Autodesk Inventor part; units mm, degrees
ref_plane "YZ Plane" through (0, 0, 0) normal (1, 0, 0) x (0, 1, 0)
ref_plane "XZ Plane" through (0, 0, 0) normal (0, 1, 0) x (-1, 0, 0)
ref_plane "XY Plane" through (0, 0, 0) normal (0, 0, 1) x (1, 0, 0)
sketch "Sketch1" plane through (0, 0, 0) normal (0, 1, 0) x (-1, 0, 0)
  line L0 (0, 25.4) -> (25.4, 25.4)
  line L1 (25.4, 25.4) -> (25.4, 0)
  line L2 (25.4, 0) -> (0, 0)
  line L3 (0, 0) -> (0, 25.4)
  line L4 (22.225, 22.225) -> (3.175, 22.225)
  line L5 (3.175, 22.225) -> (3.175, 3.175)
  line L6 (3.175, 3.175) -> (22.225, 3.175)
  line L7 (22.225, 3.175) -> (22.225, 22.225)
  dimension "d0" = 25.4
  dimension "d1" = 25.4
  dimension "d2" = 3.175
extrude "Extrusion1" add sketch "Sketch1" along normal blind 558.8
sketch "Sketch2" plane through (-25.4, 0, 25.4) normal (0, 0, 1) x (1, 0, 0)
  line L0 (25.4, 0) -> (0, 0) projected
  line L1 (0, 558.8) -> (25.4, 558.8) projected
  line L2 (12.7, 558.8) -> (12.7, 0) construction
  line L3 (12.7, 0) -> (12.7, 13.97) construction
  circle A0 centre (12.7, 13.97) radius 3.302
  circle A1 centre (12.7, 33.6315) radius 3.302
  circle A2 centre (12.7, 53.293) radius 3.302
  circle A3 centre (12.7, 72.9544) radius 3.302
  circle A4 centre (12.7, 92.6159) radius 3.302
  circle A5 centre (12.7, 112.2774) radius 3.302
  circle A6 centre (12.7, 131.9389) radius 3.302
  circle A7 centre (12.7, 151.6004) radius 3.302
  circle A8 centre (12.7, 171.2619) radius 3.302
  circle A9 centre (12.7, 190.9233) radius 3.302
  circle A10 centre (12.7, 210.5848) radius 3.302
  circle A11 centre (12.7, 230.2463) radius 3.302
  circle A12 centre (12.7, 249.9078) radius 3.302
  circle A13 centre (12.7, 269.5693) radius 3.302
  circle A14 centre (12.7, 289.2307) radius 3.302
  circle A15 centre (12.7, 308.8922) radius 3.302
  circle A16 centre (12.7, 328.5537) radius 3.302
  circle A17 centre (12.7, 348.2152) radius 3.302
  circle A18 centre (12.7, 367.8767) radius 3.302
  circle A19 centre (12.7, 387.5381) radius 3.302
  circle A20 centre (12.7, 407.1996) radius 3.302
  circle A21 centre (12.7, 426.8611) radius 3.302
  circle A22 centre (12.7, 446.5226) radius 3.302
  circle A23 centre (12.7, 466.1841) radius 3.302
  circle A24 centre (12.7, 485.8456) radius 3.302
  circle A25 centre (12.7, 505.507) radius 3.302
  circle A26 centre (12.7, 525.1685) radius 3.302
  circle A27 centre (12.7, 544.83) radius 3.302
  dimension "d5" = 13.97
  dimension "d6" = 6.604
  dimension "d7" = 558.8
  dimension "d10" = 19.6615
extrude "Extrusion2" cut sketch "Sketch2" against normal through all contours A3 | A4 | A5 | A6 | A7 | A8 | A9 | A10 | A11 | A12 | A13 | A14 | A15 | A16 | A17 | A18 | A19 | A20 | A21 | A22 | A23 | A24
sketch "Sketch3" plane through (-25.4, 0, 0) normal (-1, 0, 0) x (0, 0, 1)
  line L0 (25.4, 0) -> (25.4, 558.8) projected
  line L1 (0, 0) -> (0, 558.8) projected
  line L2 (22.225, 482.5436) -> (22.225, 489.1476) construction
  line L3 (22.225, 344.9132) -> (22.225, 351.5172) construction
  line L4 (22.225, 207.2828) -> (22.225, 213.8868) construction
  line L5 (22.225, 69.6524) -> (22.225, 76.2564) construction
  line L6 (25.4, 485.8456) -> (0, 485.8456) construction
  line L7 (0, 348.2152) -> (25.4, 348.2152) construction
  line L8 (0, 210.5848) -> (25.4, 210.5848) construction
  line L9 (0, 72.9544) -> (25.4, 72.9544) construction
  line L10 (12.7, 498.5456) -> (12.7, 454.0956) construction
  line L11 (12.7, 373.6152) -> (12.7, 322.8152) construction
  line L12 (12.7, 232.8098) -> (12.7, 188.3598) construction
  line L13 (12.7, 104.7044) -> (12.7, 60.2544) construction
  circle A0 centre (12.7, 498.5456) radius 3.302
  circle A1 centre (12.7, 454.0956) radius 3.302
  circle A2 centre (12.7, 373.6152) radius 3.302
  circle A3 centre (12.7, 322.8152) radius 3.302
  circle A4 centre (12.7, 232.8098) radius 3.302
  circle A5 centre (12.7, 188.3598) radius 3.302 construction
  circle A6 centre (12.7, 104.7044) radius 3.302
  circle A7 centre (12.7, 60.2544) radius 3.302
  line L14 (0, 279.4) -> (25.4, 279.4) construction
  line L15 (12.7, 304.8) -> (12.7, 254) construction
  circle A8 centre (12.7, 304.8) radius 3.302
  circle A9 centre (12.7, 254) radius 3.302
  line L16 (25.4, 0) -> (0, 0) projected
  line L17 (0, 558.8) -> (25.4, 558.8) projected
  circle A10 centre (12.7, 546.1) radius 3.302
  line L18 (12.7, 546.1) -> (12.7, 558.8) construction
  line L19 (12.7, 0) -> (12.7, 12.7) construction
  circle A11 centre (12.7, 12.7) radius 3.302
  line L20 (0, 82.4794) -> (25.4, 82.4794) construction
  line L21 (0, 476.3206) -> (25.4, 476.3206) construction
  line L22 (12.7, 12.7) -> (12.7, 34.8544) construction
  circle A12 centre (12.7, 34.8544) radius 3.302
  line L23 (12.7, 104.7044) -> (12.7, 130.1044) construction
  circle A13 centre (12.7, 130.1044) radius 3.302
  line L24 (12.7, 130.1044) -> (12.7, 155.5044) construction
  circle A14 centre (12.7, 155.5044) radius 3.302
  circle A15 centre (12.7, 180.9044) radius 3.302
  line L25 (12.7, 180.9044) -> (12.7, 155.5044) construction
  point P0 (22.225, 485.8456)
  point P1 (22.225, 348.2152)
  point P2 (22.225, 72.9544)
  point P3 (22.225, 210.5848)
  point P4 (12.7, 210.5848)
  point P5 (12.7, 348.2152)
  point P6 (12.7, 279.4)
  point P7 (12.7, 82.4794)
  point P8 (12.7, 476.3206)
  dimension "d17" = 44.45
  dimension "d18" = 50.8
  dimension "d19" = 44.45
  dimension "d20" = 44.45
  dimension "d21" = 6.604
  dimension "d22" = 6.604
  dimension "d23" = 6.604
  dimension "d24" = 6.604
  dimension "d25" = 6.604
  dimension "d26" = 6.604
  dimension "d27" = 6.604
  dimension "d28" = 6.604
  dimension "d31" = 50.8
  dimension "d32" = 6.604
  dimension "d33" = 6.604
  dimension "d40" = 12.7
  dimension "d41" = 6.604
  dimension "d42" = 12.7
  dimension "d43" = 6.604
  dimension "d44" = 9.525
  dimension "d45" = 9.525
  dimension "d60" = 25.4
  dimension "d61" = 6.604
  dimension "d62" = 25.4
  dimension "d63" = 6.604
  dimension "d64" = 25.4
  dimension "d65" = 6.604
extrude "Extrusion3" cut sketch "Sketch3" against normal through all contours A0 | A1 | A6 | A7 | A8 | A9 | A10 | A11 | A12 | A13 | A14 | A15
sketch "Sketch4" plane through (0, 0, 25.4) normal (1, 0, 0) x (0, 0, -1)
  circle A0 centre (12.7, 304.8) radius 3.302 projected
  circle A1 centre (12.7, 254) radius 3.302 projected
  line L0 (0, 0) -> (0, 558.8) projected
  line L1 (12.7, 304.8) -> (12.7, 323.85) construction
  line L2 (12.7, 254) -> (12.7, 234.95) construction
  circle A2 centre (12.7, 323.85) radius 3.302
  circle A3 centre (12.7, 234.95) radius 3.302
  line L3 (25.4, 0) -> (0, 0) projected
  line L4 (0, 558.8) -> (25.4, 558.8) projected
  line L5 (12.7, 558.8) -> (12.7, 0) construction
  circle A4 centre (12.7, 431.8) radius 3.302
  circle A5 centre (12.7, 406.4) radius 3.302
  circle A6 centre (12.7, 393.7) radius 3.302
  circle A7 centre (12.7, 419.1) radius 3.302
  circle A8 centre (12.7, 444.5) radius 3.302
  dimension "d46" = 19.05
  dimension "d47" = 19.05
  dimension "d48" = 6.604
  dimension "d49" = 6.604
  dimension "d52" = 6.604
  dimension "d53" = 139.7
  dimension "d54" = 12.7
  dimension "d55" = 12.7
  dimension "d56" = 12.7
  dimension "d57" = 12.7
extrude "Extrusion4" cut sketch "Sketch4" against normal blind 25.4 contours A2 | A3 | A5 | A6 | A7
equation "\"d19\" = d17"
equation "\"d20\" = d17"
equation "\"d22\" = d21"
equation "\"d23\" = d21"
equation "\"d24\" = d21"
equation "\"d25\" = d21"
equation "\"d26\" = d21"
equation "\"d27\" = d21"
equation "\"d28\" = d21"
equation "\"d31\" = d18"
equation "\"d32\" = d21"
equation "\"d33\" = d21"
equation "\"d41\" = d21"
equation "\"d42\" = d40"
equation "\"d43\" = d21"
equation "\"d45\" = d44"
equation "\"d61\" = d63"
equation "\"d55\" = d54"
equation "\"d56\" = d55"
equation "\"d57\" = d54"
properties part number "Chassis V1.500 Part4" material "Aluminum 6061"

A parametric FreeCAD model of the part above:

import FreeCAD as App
import Part
import Sketcher

V = App.Vector
Q = App.Units.Quantity


def add_polygon(sketch, points):
    """Adds a closed chain of lines whose ends are joined by coincident constraints."""
    first, n = sketch.GeometryCount, len(points)
    for a, b in zip(points, points[1:] + points[:1]):
        sketch.addGeometry(Part.LineSegment(App.Vector(*a, 0), App.Vector(*b, 0)), False)
    for i in range(n):
        sketch.addConstraint(Sketcher.Constraint("Coincident", first + i, 2, first + (i + 1) % n, 1))

doc = App.newDocument("Part")
params = doc.addObject("Spreadsheet::Sheet", "Params")
for row, (alias, value) in enumerate([
    ("sketch1_width", "1 in"),
    ("pad1_length", "22 in"),
    ("sketch2_diameter", "0.26 in"),
    ("sketch3_diameter", "0.26 in"),
    ("sketch4_diameter", "0.26 in"),
    ("pocket3_length", "1 in"),
], start=1):
    params.set(f"A{row}", alias)
    params.set(f"B{row}", "=" + value)
    params.setAlias(f"B{row}", alias)

body = doc.addObject("PartDesign::Body", "Body")

# Sketch on XZ plane
sketch1 = body.newObject("Sketcher::SketchObject", "Sketch")
sketch1.AttachmentSupport = (doc.getObject("XZ_Plane"), [""])
sketch1.MapMode = "FlatFace"
add_polygon(sketch1, [(-25, 25), (0, 25), (0, 0), (-25, 0)])  # lines 0-3
add_polygon(sketch1, [(-3, 22), (-22, 22), (-22, 3), (-3, 3)])  # lines 4-7
sketch1.addConstraint([
    Sketcher.Constraint("Horizontal", 0),
    Sketcher.Constraint("Vertical", 1),
    Sketcher.Constraint("Horizontal", 2),
    Sketcher.Constraint("Vertical", 3),
    Sketcher.Constraint("Horizontal", 4),
    Sketcher.Constraint("Vertical", 5),
    Sketcher.Constraint("Horizontal", 6),
    Sketcher.Constraint("Vertical", 7),
    Sketcher.Constraint("Coincident", 1, 2, -1, 1),
    Sketcher.Constraint("Equal", 2, 1),
    Sketcher.Constraint("Equal", 6, 5),
    Sketcher.Constraint("DistanceX", 0, 1, 0, 2, Q("1 in")),
    Sketcher.Constraint("DistanceY", -1, 1, 5, 2, Q("0.125 in")),
    Sketcher.Constraint("DistanceX", 6, 2, -1, 1, Q("0.125 in")),
    Sketcher.Constraint("DistanceX", 3, 2, 4, 2, Q("0.125 in")),
])
sketch1.setExpression("Constraints[19]", "Params.sketch1_width")
pad1 = body.newObject("PartDesign::Pad", "Pad")
pad1.Profile = sketch1
pad1.setExpression("Length", "Params.pad1_length")
pad1.Reversed = True

# Sketch on XY plane
sketch2 = body.newObject("Sketcher::SketchObject", "Sketch001")
sketch2.AttachmentSupport = (doc.getObject("XY_Plane"), [""])
sketch2.MapMode = "FlatFace"
sketch2.AttachmentOffset = App.Placement(V(0, 0, 1 * 25.4), App.Rotation())
sketch2.addGeometry([
    Part.Circle(V(-12.7, 73, 0), V(0, 0, 1), 3.3),  # 0
    Part.Circle(V(-12.7, 92.6, 0), V(0, 0, 1), 3.3),  # 1
    Part.Circle(V(-12.7, 112.3, 0), V(0, 0, 1), 3.3),  # 2
    Part.Circle(V(-12.7, 131.9, 0), V(0, 0, 1), 3.3),  # 3
    Part.Circle(V(-12.7, 151.6, 0), V(0, 0, 1), 3.3),  # 4
    Part.Circle(V(-12.7, 171.3, 0), V(0, 0, 1), 3.3),  # 5
    Part.Circle(V(-12.7, 190.9, 0), V(0, 0, 1), 3.3),  # 6
    Part.Circle(V(-12.7, 210.6, 0), V(0, 0, 1), 3.3),  # 7
    Part.Circle(V(-12.7, 230.2, 0), V(0, 0, 1), 3.3),  # 8
    Part.Circle(V(-12.7, 249.9, 0), V(0, 0, 1), 3.3),  # 9
    Part.Circle(V(-12.7, 269.6, 0), V(0, 0, 1), 3.3),  # 10
    Part.Circle(V(-12.7, 289.2, 0), V(0, 0, 1), 3.3),  # 11
    Part.Circle(V(-12.7, 308.9, 0), V(0, 0, 1), 3.3),  # 12
    Part.Circle(V(-12.7, 328.6, 0), V(0, 0, 1), 3.3),  # 13
    Part.Circle(V(-12.7, 348.2, 0), V(0, 0, 1), 3.3),  # 14
    Part.Circle(V(-12.7, 367.9, 0), V(0, 0, 1), 3.3),  # 15
    Part.Circle(V(-12.7, 387.5, 0), V(0, 0, 1), 3.3),  # 16
    Part.Circle(V(-12.7, 407.2, 0), V(0, 0, 1), 3.3),  # 17
    Part.Circle(V(-12.7, 426.9, 0), V(0, 0, 1), 3.3),  # 18
    Part.Circle(V(-12.7, 446.5, 0), V(0, 0, 1), 3.3),  # 19
    Part.Circle(V(-12.7, 466.2, 0), V(0, 0, 1), 3.3),  # 20
    Part.Circle(V(-12.7, 485.8, 0), V(0, 0, 1), 3.3),  # 21
], False)
sketch2.addConstraint([
    Sketcher.Constraint("Equal", 0, 1),
    Sketcher.Constraint("Equal", 1, 2),
    Sketcher.Constraint("Equal", 2, 3),
    Sketcher.Constraint("Equal", 3, 4),
    Sketcher.Constraint("Equal", 4, 5),
    Sketcher.Constraint("Equal", 5, 6),
    Sketcher.Constraint("Equal", 6, 7),
    Sketcher.Constraint("Equal", 7, 8),
    Sketcher.Constraint("Equal", 8, 9),
    Sketcher.Constraint("Equal", 9, 10),
    Sketcher.Constraint("Equal", 10, 11),
    Sketcher.Constraint("Equal", 11, 12),
    Sketcher.Constraint("Equal", 12, 13),
    Sketcher.Constraint("Equal", 13, 14),
    Sketcher.Constraint("Equal", 14, 15),
    Sketcher.Constraint("Equal", 15, 16),
    Sketcher.Constraint("Equal", 16, 17),
    Sketcher.Constraint("Equal", 17, 18),
    Sketcher.Constraint("Equal", 18, 19),
    Sketcher.Constraint("Equal", 19, 20),
    Sketcher.Constraint("Equal", 20, 21),
    Sketcher.Constraint("Vertical", 0, 3, 1, 3),
    Sketcher.Constraint("Vertical", 1, 3, 2, 3),
    Sketcher.Constraint("Vertical", 2, 3, 3, 3),
    Sketcher.Constraint("Vertical", 3, 3, 4, 3),
    Sketcher.Constraint("Vertical", 4, 3, 5, 3),
    Sketcher.Constraint("Vertical", 5, 3, 6, 3),
    Sketcher.Constraint("Vertical", 6, 3, 7, 3),
    Sketcher.Constraint("Vertical", 7, 3, 8, 3),
    Sketcher.Constraint("Vertical", 8, 3, 9, 3),
    Sketcher.Constraint("Vertical", 9, 3, 10, 3),
    Sketcher.Constraint("Vertical", 10, 3, 11, 3),
    Sketcher.Constraint("Vertical", 11, 3, 12, 3),
    Sketcher.Constraint("Vertical", 12, 3, 13, 3),
    Sketcher.Constraint("Vertical", 13, 3, 14, 3),
    Sketcher.Constraint("Vertical", 14, 3, 15, 3),
    Sketcher.Constraint("Vertical", 15, 3, 16, 3),
    Sketcher.Constraint("Vertical", 16, 3, 17, 3),
    Sketcher.Constraint("Vertical", 17, 3, 18, 3),
    Sketcher.Constraint("Vertical", 18, 3, 19, 3),
    Sketcher.Constraint("Vertical", 19, 3, 20, 3),
    Sketcher.Constraint("Vertical", 20, 3, 21, 3),
    Sketcher.Constraint("Diameter", 0, Q("0.26 in")),
    Sketcher.Constraint("DistanceX", 0, 3, -1, 1, Q("0.5 in")),
    Sketcher.Constraint("DistanceY", 0, 3, 1, 3, 19.6615),
    Sketcher.Constraint("DistanceY", 1, 3, 2, 3, 19.6615),
    Sketcher.Constraint("DistanceY", 2, 3, 3, 3, 19.6615),
    Sketcher.Constraint("DistanceY", 3, 3, 4, 3, 19.6615),
    Sketcher.Constraint("DistanceY", 4, 3, 5, 3, 19.6615),
    Sketcher.Constraint("DistanceY", 5, 3, 6, 3, 19.6614),
    Sketcher.Constraint("DistanceY", 6, 3, 7, 3, 19.6615),
    Sketcher.Constraint("DistanceY", 7, 3, 8, 3, 19.6615),
    Sketcher.Constraint("DistanceY", 8, 3, 9, 3, 19.6615),
    Sketcher.Constraint("DistanceY", 9, 3, 10, 3, 19.6615),
    Sketcher.Constraint("DistanceY", 10, 3, 11, 3, 19.6614),
    Sketcher.Constraint("DistanceY", 11, 3, 12, 3, 19.6615),
    Sketcher.Constraint("DistanceY", 12, 3, 13, 3, 19.6615),
    Sketcher.Constraint("DistanceY", 13, 3, 14, 3, 19.6615),
    Sketcher.Constraint("DistanceY", 14, 3, 15, 3, 19.6615),
    Sketcher.Constraint("DistanceY", 15, 3, 16, 3, 19.6614),
    Sketcher.Constraint("DistanceY", 16, 3, 17, 3, 19.6615),
    Sketcher.Constraint("DistanceY", 17, 3, 18, 3, 19.6615),
    Sketcher.Constraint("DistanceY", 18, 3, 19, 3, 19.6615),
    Sketcher.Constraint("DistanceY", 19, 3, 20, 3, 19.6615),
    Sketcher.Constraint("DistanceY", 20, 3, 21, 3, 19.6615),
    Sketcher.Constraint("DistanceY", -1, 1, 1, 3, Q("3.6463 in")),
])
sketch2.setExpression("Constraints[42]", "Params.sketch2_diameter")
pocket1 = body.newObject("PartDesign::Pocket", "Pocket")
pocket1.Profile = sketch2
pocket1.Type = "ThroughAll"

# Sketch on YZ plane
sketch3 = body.newObject("Sketcher::SketchObject", "Sketch002")
sketch3.AttachmentSupport = (doc.getObject("YZ_Plane"), [""])
sketch3.MapMode = "FlatFace"
sketch3.AttachmentOffset = App.Placement(V(0, 0, -1 * 25.4), App.Rotation())
sketch3.addGeometry([
    Part.Circle(V(498.5, 12.7, 0), V(0, 0, 1), 3.3),  # 0
    Part.Circle(V(454.1, 12.7, 0), V(0, 0, 1), 3.3),  # 1
    Part.Circle(V(104.7, 12.7, 0), V(0, 0, 1), 3.3),  # 2
    Part.Circle(V(60.3, 12.7, 0), V(0, 0, 1), 3.3),  # 3
    Part.Circle(V(304.8, 12.7, 0), V(0, 0, 1), 3.3),  # 4
    Part.Circle(V(254, 12.7, 0), V(0, 0, 1), 3.3),  # 5
    Part.Circle(V(546.1, 12.7, 0), V(0, 0, 1), 3.3),  # 6
    Part.Circle(V(12.7, 12.7, 0), V(0, 0, 1), 3.3),  # 7
    Part.Circle(V(34.9, 12.7, 0), V(0, 0, 1), 3.3),  # 8
    Part.Circle(V(130.1, 12.7, 0), V(0, 0, 1), 3.3),  # 9
    Part.Circle(V(155.5, 12.7, 0), V(0, 0, 1), 3.3),  # 10
    Part.Circle(V(180.9, 12.7, 0), V(0, 0, 1), 3.3),  # 11
], False)
sketch3.addConstraint([
    Sketcher.Constraint("Equal", 0, 1),
    Sketcher.Constraint("Equal", 1, 2),
    Sketcher.Constraint("Equal", 2, 3),
    Sketcher.Constraint("Equal", 3, 4),
    Sketcher.Constraint("Equal", 4, 5),
    Sketcher.Constraint("Equal", 5, 6),
    Sketcher.Constraint("Equal", 6, 7),
    Sketcher.Constraint("Equal", 7, 8),
    Sketcher.Constraint("Equal", 8, 9),
    Sketcher.Constraint("Equal", 9, 10),
    Sketcher.Constraint("Equal", 10, 11),
    Sketcher.Constraint("Horizontal", 0, 3, 1, 3),
    Sketcher.Constraint("Horizontal", 1, 3, 2, 3),
    Sketcher.Constraint("Horizontal", 2, 3, 3, 3),
    Sketcher.Constraint("Horizontal", 3, 3, 4, 3),
    Sketcher.Constraint("Horizontal", 4, 3, 5, 3),
    Sketcher.Constraint("Horizontal", 5, 3, 6, 3),
    Sketcher.Constraint("Horizontal", 6, 3, 7, 3),
    Sketcher.Constraint("Horizontal", 7, 3, 8, 3),
    Sketcher.Constraint("Horizontal", 8, 3, 9, 3),
    Sketcher.Constraint("Horizontal", 9, 3, 10, 3),
    Sketcher.Constraint("Horizontal", 10, 3, 11, 3),
    Sketcher.Constraint("Diameter", 0, Q("0.26 in")),
    Sketcher.Constraint("DistanceX", 5, 3, 4, 3, Q("2 in")),
    Sketcher.Constraint("DistanceX", 8, 3, 3, 3, Q("1 in")),
    Sketcher.Constraint("DistanceX", 2, 3, 9, 3, Q("1 in")),
    Sketcher.Constraint("DistanceX", 9, 3, 10, 3, Q("1 in")),
    Sketcher.Constraint("DistanceX", 10, 3, 11, 3, Q("1 in")),
    Sketcher.Constraint("DistanceY", -1, 1, 0, 3, Q("0.5 in")),
    Sketcher.Constraint("DistanceX", -1, 1, 7, 3, Q("0.5 in")),
    Sketcher.Constraint("DistanceX", 1, 3, 0, 3, Q("1.75 in")),
    Sketcher.Constraint("DistanceX", 3, 3, 2, 3, Q("1.75 in")),
    Sketcher.Constraint("DistanceX", -1, 1, 4, 3, Q("12 in")),
    Sketcher.Constraint("DistanceX", -1, 1, 6, 3, Q("21.5 in")),
    Sketcher.Constraint("DistanceX", -1, 1, 0, 3, 498.5456),
    Sketcher.Constraint("DistanceX", -1, 1, 2, 3, 104.7044),
])
sketch3.setExpression("Constraints[22]", "Params.sketch3_diameter")
pocket2 = body.newObject("PartDesign::Pocket", "Pocket001")
pocket2.Profile = sketch3
pocket2.Type = "ThroughAll"
pocket2.Reversed = True

# Sketch on YZ plane
sketch4 = body.newObject("Sketcher::SketchObject", "Sketch003")
sketch4.AttachmentSupport = (doc.getObject("YZ_Plane"), [""])
sketch4.MapMode = "FlatFace"
sketch4.addGeometry([
    Part.Circle(V(323.9, 12.7, 0), V(0, 0, 1), 3.3),  # 0
    Part.Circle(V(234.9, 12.7, 0), V(0, 0, 1), 3.3),  # 1
    Part.Circle(V(406.4, 12.7, 0), V(0, 0, 1), 3.3),  # 2
    Part.Circle(V(393.7, 12.7, 0), V(0, 0, 1), 3.3),  # 3
    Part.Circle(V(419.1, 12.7, 0), V(0, 0, 1), 3.3),  # 4
], False)
sketch4.addConstraint([
    Sketcher.Constraint("Equal", 0, 1),
    Sketcher.Constraint("Equal", 1, 2),
    Sketcher.Constraint("Equal", 2, 3),
    Sketcher.Constraint("Equal", 3, 4),
    Sketcher.Constraint("Horizontal", 0, 3, 1, 3),
    Sketcher.Constraint("Horizontal", 1, 3, 2, 3),
    Sketcher.Constraint("Horizontal", 2, 3, 3, 3),
    Sketcher.Constraint("Horizontal", 3, 3, 4, 3),
    Sketcher.Constraint("Diameter", 0, Q("0.26 in")),
    Sketcher.Constraint("DistanceY", -1, 1, 0, 3, Q("0.5 in")),
    Sketcher.Constraint("DistanceX", 3, 3, 2, 3, Q("0.5 in")),
    Sketcher.Constraint("DistanceX", 2, 3, 4, 3, Q("0.5 in")),
    Sketcher.Constraint("DistanceX", -1, 1, 2, 3, Q("16 in")),
    Sketcher.Constraint("DistanceX", 1, 3, 0, 3, Q("3.5 in")),
    Sketcher.Constraint("DistanceX", -1, 1, 0, 3, Q("12.75 in")),
])
sketch4.setExpression("Constraints[8]", "Params.sketch4_diameter")
pocket3 = body.newObject("PartDesign::Pocket", "Pocket002")
pocket3.Profile = sketch4
pocket3.setExpression("Length", "Params.pocket3_length")

doc.recompute()
